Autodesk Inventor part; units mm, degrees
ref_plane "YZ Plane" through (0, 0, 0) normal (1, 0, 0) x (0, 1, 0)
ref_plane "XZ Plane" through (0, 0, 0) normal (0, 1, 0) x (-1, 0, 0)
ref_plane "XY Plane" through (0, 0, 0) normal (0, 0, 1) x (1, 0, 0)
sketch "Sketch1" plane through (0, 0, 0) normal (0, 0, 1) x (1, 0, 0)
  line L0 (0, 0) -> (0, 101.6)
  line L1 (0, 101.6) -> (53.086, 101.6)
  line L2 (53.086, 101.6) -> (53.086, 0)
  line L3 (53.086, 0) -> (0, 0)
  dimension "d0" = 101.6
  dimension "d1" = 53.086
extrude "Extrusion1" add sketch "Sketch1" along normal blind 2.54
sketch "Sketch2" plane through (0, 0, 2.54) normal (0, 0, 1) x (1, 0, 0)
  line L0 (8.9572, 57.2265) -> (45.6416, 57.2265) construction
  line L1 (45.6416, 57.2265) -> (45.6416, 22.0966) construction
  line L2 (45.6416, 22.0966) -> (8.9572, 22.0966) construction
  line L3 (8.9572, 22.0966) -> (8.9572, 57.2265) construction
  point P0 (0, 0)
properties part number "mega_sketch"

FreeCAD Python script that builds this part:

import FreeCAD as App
import Part
import Sketcher
from FreeCAD import Vector
Q = App.Units.Quantity


def add_polygon(sketch, points):
    """Adds a closed chain of lines whose ends are joined by coincident constraints."""
    first, n = sketch.GeometryCount, len(points)
    for a, b in zip(points, points[1:] + points[:1]):
        sketch.addGeometry(Part.LineSegment(App.Vector(*a, 0), App.Vector(*b, 0)), False)
    for i in range(n):
        sketch.addConstraint(Sketcher.Constraint("Coincident", first + i, 2, first + (i + 1) % n, 1))

doc = App.newDocument("Part")
body = doc.addObject("PartDesign::Body", "Body")

# Sketch on XY plane
sketch1 = body.newObject("Sketcher::SketchObject", "Sketch")
sketch1.AttachmentSupport = (doc.getObject("XY_Plane"), [""])
sketch1.MapMode = "FlatFace"
add_polygon(sketch1, [(0, 101.6), (0, 0), (53.086, 0), (53.086, 101.6)])  # lines 0-3
sketch1.addConstraint(Sketcher.Constraint("Vertical", 0))
sketch1.addConstraint(Sketcher.Constraint("Horizontal", 1))
sketch1.addConstraint(Sketcher.Constraint("Vertical", 2))
sketch1.addConstraint(Sketcher.Constraint("Horizontal", 3))
sketch1.addConstraint(Sketcher.Constraint("Coincident", 0, 2, -1, 1))
sketch1.addConstraint(Sketcher.Constraint("DistanceY", 0, 2, 0, 1, Q("4 in")))
sketch1.addConstraint(Sketcher.Constraint("DistanceX", 1, 1, 1, 2, Q("2.09 in")))
pad1 = body.newObject("PartDesign::Pad", "Pad")
pad1.Profile = sketch1
pad1.Length = Q("0.1 in")

doc.recompute()
